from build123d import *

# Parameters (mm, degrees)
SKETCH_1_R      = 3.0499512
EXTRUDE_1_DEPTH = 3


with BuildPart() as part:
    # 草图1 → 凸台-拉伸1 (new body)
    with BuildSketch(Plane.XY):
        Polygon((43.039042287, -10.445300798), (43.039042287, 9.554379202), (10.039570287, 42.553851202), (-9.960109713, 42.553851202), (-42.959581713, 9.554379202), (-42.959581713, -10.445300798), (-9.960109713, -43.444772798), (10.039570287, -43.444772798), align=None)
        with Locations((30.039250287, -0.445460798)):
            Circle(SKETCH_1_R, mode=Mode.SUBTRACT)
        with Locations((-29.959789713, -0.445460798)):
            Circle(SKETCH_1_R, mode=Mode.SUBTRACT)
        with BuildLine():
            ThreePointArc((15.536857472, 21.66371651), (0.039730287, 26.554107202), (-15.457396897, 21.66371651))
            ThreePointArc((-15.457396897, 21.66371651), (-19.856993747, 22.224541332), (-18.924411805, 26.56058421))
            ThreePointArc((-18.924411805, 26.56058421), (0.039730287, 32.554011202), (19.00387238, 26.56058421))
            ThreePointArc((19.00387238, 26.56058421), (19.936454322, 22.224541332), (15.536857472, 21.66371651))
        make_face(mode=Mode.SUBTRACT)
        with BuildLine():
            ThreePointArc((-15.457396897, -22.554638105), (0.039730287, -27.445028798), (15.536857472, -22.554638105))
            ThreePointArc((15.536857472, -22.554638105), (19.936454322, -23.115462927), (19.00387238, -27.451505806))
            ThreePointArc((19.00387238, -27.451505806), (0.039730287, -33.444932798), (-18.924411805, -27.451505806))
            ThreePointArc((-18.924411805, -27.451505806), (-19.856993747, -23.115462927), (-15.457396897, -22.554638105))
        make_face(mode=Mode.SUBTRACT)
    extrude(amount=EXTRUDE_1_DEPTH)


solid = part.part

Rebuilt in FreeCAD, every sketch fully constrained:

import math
import FreeCAD as App
import Part
import Sketcher
from FreeCAD import Vector

doc = App.newDocument("Part")
body = doc.addObject("PartDesign::Body", "Body")

sketch1 = body.newObject("Sketcher::SketchObject", "Sketch")
sketch1.AttachmentSupport = (doc.getObject("XY_Plane"), [""])
sketch1.MapMode = "FlatFace"
sketch1.addGeometry([
    Part.LineSegment(Vector(43, -10.4, 0), Vector(43, 9.6, 0)),
    Part.LineSegment(Vector(43, 9.6, 0), Vector(10, 42.6, 0)),
    Part.LineSegment(Vector(10, 42.6, 0), Vector(-10, 42.6, 0)),
    Part.LineSegment(Vector(-10, 42.6, 0), Vector(-43, 9.6, 0)),
    Part.LineSegment(Vector(-43, 9.6, 0), Vector(-43, -10.4, 0)),
    Part.LineSegment(Vector(-43, -10.4, 0), Vector(-10, -43.4, 0)),
    Part.LineSegment(Vector(-10, -43.4, 0), Vector(10, -43.4, 0)),
    Part.LineSegment(Vector(10, -43.4, 0), Vector(43, -10.4, 0)),
    Part.ArcOfCircle(Part.Circle(Vector(-17.4, -24.9, 0), Vector(0, 0, 1), 3), math.radians(50), math.radians(240)),
    Part.ArcOfCircle(Part.Circle(Vector(0, -0.4, 0), Vector(0, 0, 1), 27), math.radians(-125), math.radians(-55)),
    Part.ArcOfCircle(Part.Circle(Vector(17.5, -24.9, 0), Vector(0, 0, 1), 3), math.radians(-60), math.radians(130)),
    Part.ArcOfCircle(Part.Circle(Vector(0, -0.4, 0), Vector(0, 0, 1), 33), math.radians(-125), math.radians(-55)),
    Part.Circle(Vector(-30, -0.4, 0), Vector(0, 0, 1), 3),
    Part.Circle(Vector(30, -0.4, 0), Vector(0, 0, 1), 3),
    Part.ArcOfCircle(Part.Circle(Vector(17.5, 24, 0), Vector(0, 0, 1), 3), math.radians(-130), math.radians(60)),
    Part.ArcOfCircle(Part.Circle(Vector(0, -0.4, 0), Vector(0, 0, 1), 27), math.radians(55), math.radians(125)),
    Part.ArcOfCircle(Part.Circle(Vector(-17.4, 24, 0), Vector(0, 0, 1), 3), math.radians(120), math.radians(310)),
    Part.ArcOfCircle(Part.Circle(Vector(0, -0.4, 0), Vector(0, 0, 1), 33), math.radians(55), math.radians(125)),
], False)
sketch1.addConstraint([
    Sketcher.Constraint("Coincident", 0, 2, 1, 1),
    Sketcher.Constraint("Coincident", 1, 2, 2, 1),
    Sketcher.Constraint("Coincident", 2, 2, 3, 1),
    Sketcher.Constraint("Coincident", 3, 2, 4, 1),
    Sketcher.Constraint("Coincident", 4, 2, 5, 1),
    Sketcher.Constraint("Coincident", 5, 2, 6, 1),
    Sketcher.Constraint("Coincident", 6, 2, 7, 1),
    Sketcher.Constraint("Coincident", 7, 2, 0, 1),
    Sketcher.Constraint("Coincident", 8, 1, 9, 1),
    Sketcher.Constraint("Coincident", 9, 2, 10, 2),
    Sketcher.Constraint("Coincident", 10, 1, 11, 2),
    Sketcher.Constraint("Coincident", 11, 1, 8, 2),
    Sketcher.Constraint("Coincident", 14, 1, 15, 1),
    Sketcher.Constraint("Coincident", 15, 2, 16, 2),
    Sketcher.Constraint("Coincident", 16, 1, 17, 2),
    Sketcher.Constraint("Coincident", 17, 1, 14, 2),
    Sketcher.Constraint("Vertical", 0),
    Sketcher.Constraint("Horizontal", 2),
    Sketcher.Constraint("Vertical", 4),
    Sketcher.Constraint("Horizontal", 6),
    Sketcher.Constraint("Coincident", 11, 3, 9, 3),
    Sketcher.Constraint("Coincident", 15, 3, 9, 3),
    Sketcher.Constraint("Coincident", 17, 3, 9, 3),
    Sketcher.Constraint("Equal", 8, 10),
    Sketcher.Constraint("Equal", 12, 13),
    Sketcher.Constraint("Equal", 10, 14),
    Sketcher.Constraint("Equal", 9, 15),
    Sketcher.Constraint("Equal", 14, 16),
    Sketcher.Constraint("Equal", 11, 17),
    Sketcher.Constraint("Perpendicular", 1, 3),
    Sketcher.Constraint("Perpendicular", 3, 5),
    Sketcher.Constraint("Perpendicular", 5, 7),
    Sketcher.Constraint("Horizontal", 8, 3, 10, 3),
    Sketcher.Constraint("Horizontal", 11, 3, 12, 3),
    Sketcher.Constraint("Horizontal", 12, 3, 13, 3),
    Sketcher.Constraint("Horizontal", 14, 3, 16, 3),
    Sketcher.Constraint("Horizontal", 0, 2, 3, 2),
    Sketcher.Constraint("Horizontal", 4, 2, 7, 2),
    Sketcher.Constraint("Horizontal", 8, 1, 9, 2),
    Sketcher.Constraint("Horizontal", 14, 1, 15, 2),
    Sketcher.Constraint("Vertical", 10, 3, 14, 3),
    Sketcher.Constraint("Vertical", 2, 2, 5, 2),
    Sketcher.Constraint("Vertical", 1, 2, 6, 2),
    Sketcher.Constraint("Vertical", 9, 2, 14, 1),
    Sketcher.Constraint("Equal", 6, 0),
    Sketcher.Constraint("Radius", 11, 32.999472),
    Sketcher.Constraint("Radius", 15, 26.999568),
    Sketcher.Constraint("Diameter", 12, 6.099902),
    Sketcher.Constraint("Radius", 8, 3.010865),
    Sketcher.Constraint("Distance", 1, 46.668301),
    Sketcher.Constraint("DistanceX", 2, 2, 2, 1, 19.99968),
    Sketcher.Constraint("DistanceY", 4, 2, -1, 1, 10.445301),
    Sketcher.Constraint("DistanceY", 8, 3, 9, 3, 24.4098),
    Sketcher.Constraint("DistanceY", 8, 3, -1, 1, 24.855261),
    Sketcher.Constraint("DistanceX", -1, 1, 9, 3, 0.03973),
    Sketcher.Constraint("DistanceX", 12, 3, -1, 1, 29.95979),
    Sketcher.Constraint("DistanceX", -1, 1, 13, 3, 30.03925),
    Sketcher.Constraint("DistanceX", -1, 1, 1, 2, 10.03957),
    Sketcher.Constraint("DistanceY", 8, 1, -1, 1, 22.554638),
])
pad1 = body.newObject("PartDesign::Pad", "Pad")
pad1.Profile = sketch1
pad1.Length = 3

doc.recompute()
